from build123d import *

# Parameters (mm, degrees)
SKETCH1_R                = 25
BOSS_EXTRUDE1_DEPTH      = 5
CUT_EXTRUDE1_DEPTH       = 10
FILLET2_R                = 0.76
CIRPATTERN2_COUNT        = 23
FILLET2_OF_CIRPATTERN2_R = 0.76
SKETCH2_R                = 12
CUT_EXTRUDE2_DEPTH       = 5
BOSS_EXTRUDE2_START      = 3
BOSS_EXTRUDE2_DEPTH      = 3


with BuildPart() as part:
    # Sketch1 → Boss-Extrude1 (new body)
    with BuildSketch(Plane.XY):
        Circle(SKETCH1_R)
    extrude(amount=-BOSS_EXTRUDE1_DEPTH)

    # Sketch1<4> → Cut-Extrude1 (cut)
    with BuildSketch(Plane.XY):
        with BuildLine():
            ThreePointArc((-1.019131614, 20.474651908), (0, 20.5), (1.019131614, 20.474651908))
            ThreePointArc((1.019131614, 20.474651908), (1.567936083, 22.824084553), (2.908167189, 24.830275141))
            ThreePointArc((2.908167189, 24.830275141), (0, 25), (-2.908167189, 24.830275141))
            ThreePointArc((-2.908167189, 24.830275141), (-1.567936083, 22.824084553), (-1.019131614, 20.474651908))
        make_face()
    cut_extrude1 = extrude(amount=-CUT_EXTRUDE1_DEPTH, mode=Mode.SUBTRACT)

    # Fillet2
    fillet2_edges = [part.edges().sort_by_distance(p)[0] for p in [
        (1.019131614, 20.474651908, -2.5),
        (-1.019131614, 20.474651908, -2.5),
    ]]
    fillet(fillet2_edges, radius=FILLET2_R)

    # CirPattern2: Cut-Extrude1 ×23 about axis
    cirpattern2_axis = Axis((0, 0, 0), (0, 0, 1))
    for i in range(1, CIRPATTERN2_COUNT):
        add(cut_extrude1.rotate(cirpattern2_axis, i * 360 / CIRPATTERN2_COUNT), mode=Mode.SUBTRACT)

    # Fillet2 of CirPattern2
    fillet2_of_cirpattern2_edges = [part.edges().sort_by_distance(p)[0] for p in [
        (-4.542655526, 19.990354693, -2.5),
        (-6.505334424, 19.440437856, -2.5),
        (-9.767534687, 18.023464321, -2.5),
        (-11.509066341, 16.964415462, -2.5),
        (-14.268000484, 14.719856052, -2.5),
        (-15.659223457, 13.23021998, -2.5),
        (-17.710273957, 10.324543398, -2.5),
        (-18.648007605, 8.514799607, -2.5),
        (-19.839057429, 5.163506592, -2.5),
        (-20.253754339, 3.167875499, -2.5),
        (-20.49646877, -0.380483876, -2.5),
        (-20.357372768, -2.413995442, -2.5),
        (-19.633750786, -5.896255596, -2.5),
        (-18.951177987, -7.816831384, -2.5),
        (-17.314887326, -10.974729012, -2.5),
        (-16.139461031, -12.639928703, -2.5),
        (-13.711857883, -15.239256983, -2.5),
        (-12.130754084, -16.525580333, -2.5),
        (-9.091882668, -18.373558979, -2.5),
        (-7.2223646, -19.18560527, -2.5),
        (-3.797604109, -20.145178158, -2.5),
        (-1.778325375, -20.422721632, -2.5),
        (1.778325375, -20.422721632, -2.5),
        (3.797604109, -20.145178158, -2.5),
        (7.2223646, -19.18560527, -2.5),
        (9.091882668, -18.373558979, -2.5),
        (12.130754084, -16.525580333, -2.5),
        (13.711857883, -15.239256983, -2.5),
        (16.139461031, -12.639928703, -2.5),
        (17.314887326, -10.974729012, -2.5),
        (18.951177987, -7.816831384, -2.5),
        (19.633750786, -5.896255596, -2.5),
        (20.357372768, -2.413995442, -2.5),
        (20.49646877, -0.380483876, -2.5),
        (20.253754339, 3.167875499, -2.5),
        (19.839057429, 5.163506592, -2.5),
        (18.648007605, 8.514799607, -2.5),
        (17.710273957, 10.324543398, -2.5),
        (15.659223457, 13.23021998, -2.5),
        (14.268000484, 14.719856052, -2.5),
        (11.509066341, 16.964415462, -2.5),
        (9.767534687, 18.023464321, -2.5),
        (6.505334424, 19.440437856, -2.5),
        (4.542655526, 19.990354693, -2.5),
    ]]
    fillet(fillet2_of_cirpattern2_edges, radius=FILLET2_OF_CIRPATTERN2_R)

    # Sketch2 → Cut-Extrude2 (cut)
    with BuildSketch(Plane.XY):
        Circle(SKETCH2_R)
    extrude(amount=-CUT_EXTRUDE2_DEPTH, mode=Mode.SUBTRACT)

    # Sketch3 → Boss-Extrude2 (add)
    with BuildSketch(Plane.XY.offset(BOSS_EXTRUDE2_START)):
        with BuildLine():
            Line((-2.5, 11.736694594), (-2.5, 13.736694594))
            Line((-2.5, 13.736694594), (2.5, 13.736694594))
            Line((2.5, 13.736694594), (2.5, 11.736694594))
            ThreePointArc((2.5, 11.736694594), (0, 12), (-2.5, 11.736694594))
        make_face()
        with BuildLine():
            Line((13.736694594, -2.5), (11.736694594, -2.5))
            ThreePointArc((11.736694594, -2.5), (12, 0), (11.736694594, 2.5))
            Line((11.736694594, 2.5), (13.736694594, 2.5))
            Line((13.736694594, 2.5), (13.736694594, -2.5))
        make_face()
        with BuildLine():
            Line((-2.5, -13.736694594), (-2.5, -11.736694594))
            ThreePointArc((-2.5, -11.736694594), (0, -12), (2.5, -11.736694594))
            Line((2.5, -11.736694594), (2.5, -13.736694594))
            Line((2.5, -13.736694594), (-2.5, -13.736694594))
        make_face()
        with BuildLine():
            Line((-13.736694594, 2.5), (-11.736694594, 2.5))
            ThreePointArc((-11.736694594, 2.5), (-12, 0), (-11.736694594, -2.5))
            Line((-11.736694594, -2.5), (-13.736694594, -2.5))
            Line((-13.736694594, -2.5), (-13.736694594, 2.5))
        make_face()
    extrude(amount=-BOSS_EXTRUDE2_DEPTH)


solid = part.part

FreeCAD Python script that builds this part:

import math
import FreeCAD as App
import Part
import Sketcher


def edges_at(feature, points):
    """Names of the edges that pass closest to the given points."""
    edges = feature.Shape.Edges
    near = lambda p: min(range(len(edges)), key=lambda i: edges[i].distToShape(Part.Vertex(*p))[0])
    return sorted({f"Edge{near(p) + 1}" for p in points})

doc = App.newDocument("Part")
body = doc.addObject("PartDesign::Body", "Body")

# Sketch on XY plane
sketch1 = doc.addObject("Sketcher::SketchObject", "Sketch")
body.addObject(sketch1)
sketch1.AttachmentSupport = (doc.XY_Plane, [""])
sketch1.MapMode = "FlatFace"
sketch1.addGeometry(Part.Circle(App.Vector(0, 0, 0), App.Vector(0, 0, 1), 25), False)
sketch1.addConstraint(Sketcher.Constraint("Coincident", 0, 3, -1, 1))
sketch1.addConstraint(Sketcher.Constraint("Diameter", 0, 50.0))
pad1 = doc.addObject("PartDesign::Pad", "Pad")
body.addObject(pad1)
pad1.Profile = sketch1
pad1.Length = 5
pad1.Reversed = True

# Sketch on XY plane
sketch2 = doc.addObject("Sketcher::SketchObject", "Sketch001")
body.addObject(sketch2)
sketch2.AttachmentSupport = (doc.XY_Plane, [""])
sketch2.MapMode = "FlatFace"
sketch2.addGeometry(Part.ArcOfCircle(Part.Circle(App.Vector(0, 0, 0), App.Vector(0, 0, 1), 20.5), math.radians(87.15), math.radians(92.85)), False)
sketch2.addGeometry(Part.ArcOfCircle(Part.Circle(App.Vector(7.8, 20.1, 0), App.Vector(0, 0, 1), 6.7), math.radians(136), math.radians(177)), False)
sketch2.addGeometry(Part.ArcOfCircle(Part.Circle(App.Vector(0, 0, 0), App.Vector(0, 0, 1), 25), math.radians(83.32), math.radians(96.68)), False)
sketch2.addGeometry(Part.ArcOfCircle(Part.Circle(App.Vector(-7.8, 20.1, 0), App.Vector(0, 0, 1), 6.7), math.radians(3), math.radians(44)), False)
sketch2.addConstraint(Sketcher.Constraint("Coincident", 0, 1, 1, 2))
sketch2.addConstraint(Sketcher.Constraint("Coincident", 1, 1, 2, 1))
sketch2.addConstraint(Sketcher.Constraint("Coincident", 2, 2, 3, 2))
sketch2.addConstraint(Sketcher.Constraint("Coincident", 3, 1, 0, 2))
sketch2.addConstraint(Sketcher.Constraint("Coincident", 0, 3, -1, 1))
sketch2.addConstraint(Sketcher.Constraint("Coincident", 2, 3, -1, 1))
sketch2.addConstraint(Sketcher.Constraint("Equal", 1, 3))
sketch2.addConstraint(Sketcher.Constraint("Symmetric", 1, 3, 3, 3, -2))
sketch2.addConstraint(Sketcher.Constraint("Radius", 2, 25.0))
sketch2.addConstraint(Sketcher.Constraint("Radius", 0, 20.5))
sketch2.addConstraint(Sketcher.Constraint("Radius", 1, 6.747807))
sketch2.addConstraint(Sketcher.Constraint("DistanceX", 2, 2, 0, 1, 3.927299))
sketch2.addConstraint(Sketcher.Constraint("DistanceX", -1, 1, 0, 1, 1.019132))
pocket1 = doc.addObject("PartDesign::Pocket", "Pocket")
body.addObject(pocket1)
pocket1.Profile = sketch2
pocket1.Length = 10
doc.recompute()

fillet = doc.addObject("PartDesign::Fillet", "Fillet")
body.addObject(fillet)
fillet.Base = (pocket1, edges_at(pocket1, [(1.019, 20.475, -2.5), (-1.019, 20.475, -2.5)]))
fillet.Radius = 0.76
doc.recompute()

polarpattern = doc.addObject("PartDesign::PolarPattern", "PolarPattern")
body.addObject(polarpattern)
polarpattern.Originals = [pocket1]
polarpattern.Axis = (doc.Z_Axis, [""])
polarpattern.Angle = 360
polarpattern.Occurrences = 23
body.Tip = polarpattern
doc.recompute()

fillet2 = doc.addObject("PartDesign::Fillet", "Fillet001")
body.addObject(fillet2)
fillet2.Base = (polarpattern, edges_at(polarpattern, [
    (-4.543, 19.99, -2.5),
    (-6.505, 19.44, -2.5),
    (-9.768, 18.023, -2.5),
    (-11.509, 16.964, -2.5),
    (-14.268, 14.72, -2.5),
    (-15.659, 13.23, -2.5),
    (-17.71, 10.325, -2.5),
    (-18.648, 8.515, -2.5),
    (-19.839, 5.164, -2.5),
    (-20.254, 3.168, -2.5),
    (-20.496, -0.38, -2.5),
    (-20.357, -2.414, -2.5),
    (-19.634, -5.896, -2.5),
    (-18.951, -7.817, -2.5),
    (-17.315, -10.975, -2.5),
    (-16.139, -12.64, -2.5),
    (-13.712, -15.239, -2.5),
    (-12.131, -16.526, -2.5),
    (-9.092, -18.374, -2.5),
    (-7.222, -19.186, -2.5),
    (-3.798, -20.145, -2.5),
    (-1.778, -20.423, -2.5),
    (1.778, -20.423, -2.5),
    (3.798, -20.145, -2.5),
    (7.222, -19.186, -2.5),
    (9.092, -18.374, -2.5),
    (12.131, -16.526, -2.5),
    (13.712, -15.239, -2.5),
    (16.139, -12.64, -2.5),
    (17.315, -10.975, -2.5),
    (18.951, -7.817, -2.5),
    (19.634, -5.896, -2.5),
    (20.357, -2.414, -2.5),
    (20.496, -0.38, -2.5),
    (20.254, 3.168, -2.5),
    (19.839, 5.164, -2.5),
    (18.648, 8.515, -2.5),
    (17.71, 10.325, -2.5),
    (15.659, 13.23, -2.5),
    (14.268, 14.72, -2.5),
    (11.509, 16.964, -2.5),
    (9.768, 18.023, -2.5),
    (6.505, 19.44, -2.5),
    (4.543, 19.99, -2.5),
]))
fillet2.Radius = 0.76

# Sketch on XY plane
sketch3 = doc.addObject("Sketcher::SketchObject", "Sketch002")
body.addObject(sketch3)
sketch3.AttachmentSupport = (doc.XY_Plane, [""])
sketch3.MapMode = "FlatFace"
sketch3.addGeometry(Part.Circle(App.Vector(0, 0, 0), App.Vector(0, 0, 1), 12), False)
sketch3.addConstraint(Sketcher.Constraint("Coincident", 0, 3, -1, 1))
sketch3.addConstraint(Sketcher.Constraint("Diameter", 0, 24.0))
pocket2 = doc.addObject("PartDesign::Pocket", "Pocket001")
body.addObject(pocket2)
pocket2.Profile = sketch3
pocket2.Length = 5

# Sketch on XY plane
sketch4 = doc.addObject("Sketcher::SketchObject", "Sketch003")
body.addObject(sketch4)
sketch4.AttachmentSupport = (doc.XY_Plane, [""])
sketch4.MapMode = "FlatFace"
sketch4.AttachmentOffset = App.Placement(App.Vector(0, 0, 3), App.Rotation())
sketch4.addGeometry(Part.LineSegment(App.Vector(-2.5, 13.7, 0), App.Vector(-2.5, 11.7, 0)), False)
sketch4.addGeometry(Part.ArcOfCircle(Part.Circle(App.Vector(0, 0, 0), App.Vector(0, 0, 1), 12), math.radians(78), math.radians(102)), False)
sketch4.addGeometry(Part.LineSegment(App.Vector(2.5, 11.7, 0), App.Vector(2.5, 13.7, 0)), False)
sketch4.addGeometry(Part.LineSegment(App.Vector(2.5, 13.7, 0), App.Vector(-2.5, 13.7, 0)), False)
sketch4.addGeometry(Part.LineSegment(App.Vector(11.7, -2.5, 0), App.Vector(13.7, -2.5, 0)), False)
sketch4.addGeometry(Part.LineSegment(App.Vector(13.7, -2.5, 0), App.Vector(13.7, 2.5, 0)), False)
sketch4.addGeometry(Part.LineSegment(App.Vector(13.7, 2.5, 0), App.Vector(11.7, 2.5, 0)), False)
sketch4.addGeometry(Part.ArcOfCircle(Part.Circle(App.Vector(0, 0, 0), App.Vector(0, 0, 1), 12), math.radians(-12), math.radians(12)), False)
sketch4.addGeometry(Part.LineSegment(App.Vector(-2.5, -11.7, 0), App.Vector(-2.5, -13.7, 0)), False)
sketch4.addGeometry(Part.LineSegment(App.Vector(-2.5, -13.7, 0), App.Vector(2.5, -13.7, 0)), False)
sketch4.addGeometry(Part.LineSegment(App.Vector(2.5, -13.7, 0), App.Vector(2.5, -11.7, 0)), False)
sketch4.addGeometry(Part.ArcOfCircle(Part.Circle(App.Vector(0, 0, 0), App.Vector(0, 0, 1), 12), math.radians(-102), math.radians(-78)), False)
sketch4.addGeometry(Part.LineSegment(App.Vector(-11.7, 2.5, 0), App.Vector(-13.7, 2.5, 0)), False)
sketch4.addGeometry(Part.LineSegment(App.Vector(-13.7, 2.5, 0), App.Vector(-13.7, -2.5, 0)), False)
sketch4.addGeometry(Part.LineSegment(App.Vector(-13.7, -2.5, 0), App.Vector(-11.7, -2.5, 0)), False)
sketch4.addGeometry(Part.ArcOfCircle(Part.Circle(App.Vector(0, 0, 0), App.Vector(0, 0, 1), 12), math.radians(168), math.radians(192)), False)
sketch4.addConstraint(Sketcher.Constraint("Coincident", 0, 2, 1, 2))
sketch4.addConstraint(Sketcher.Constraint("Coincident", 1, 1, 2, 1))
sketch4.addConstraint(Sketcher.Constraint("Coincident", 2, 2, 3, 1))
sketch4.addConstraint(Sketcher.Constraint("Coincident", 3, 2, 0, 1))
sketch4.addConstraint(Sketcher.Constraint("Coincident", 4, 2, 5, 1))
sketch4.addConstraint(Sketcher.Constraint("Coincident", 5, 2, 6, 1))
sketch4.addConstraint(Sketcher.Constraint("Coincident", 6, 2, 7, 2))
sketch4.addConstraint(Sketcher.Constraint("Coincident", 7, 1, 4, 1))
sketch4.addConstraint(Sketcher.Constraint("Coincident", 8, 2, 9, 1))
sketch4.addConstraint(Sketcher.Constraint("Coincident", 9, 2, 10, 1))
sketch4.addConstraint(Sketcher.Constraint("Coincident", 10, 2, 11, 2))
sketch4.addConstraint(Sketcher.Constraint("Coincident", 11, 1, 8, 1))
sketch4.addConstraint(Sketcher.Constraint("Coincident", 12, 2, 13, 1))
sketch4.addConstraint(Sketcher.Constraint("Coincident", 13, 2, 14, 1))
sketch4.addConstraint(Sketcher.Constraint("Coincident", 14, 2, 15, 2))
sketch4.addConstraint(Sketcher.Constraint("Coincident", 15, 1, 12, 1))
sketch4.addConstraint(Sketcher.Constraint("Vertical", 0))
sketch4.addConstraint(Sketcher.Constraint("Vertical", 2))
sketch4.addConstraint(Sketcher.Constraint("Horizontal", 3))
sketch4.addConstraint(Sketcher.Constraint("Horizontal", 4))
sketch4.addConstraint(Sketcher.Constraint("Vertical", 5))
sketch4.addConstraint(Sketcher.Constraint("Horizontal", 6))
sketch4.addConstraint(Sketcher.Constraint("Vertical", 8))
sketch4.addConstraint(Sketcher.Constraint("Horizontal", 9))
sketch4.addConstraint(Sketcher.Constraint("Vertical", 10))
sketch4.addConstraint(Sketcher.Constraint("Horizontal", 12))
sketch4.addConstraint(Sketcher.Constraint("Vertical", 13))
sketch4.addConstraint(Sketcher.Constraint("Horizontal", 14))
sketch4.addConstraint(Sketcher.Constraint("Coincident", 1, 3, -1, 1))
sketch4.addConstraint(Sketcher.Constraint("Coincident", 7, 3, -1, 1))
sketch4.addConstraint(Sketcher.Constraint("Coincident", 11, 3, -1, 1))
sketch4.addConstraint(Sketcher.Constraint("Coincident", 15, 3, -1, 1))
sketch4.addConstraint(Sketcher.Constraint("Equal", 1, 7))
sketch4.addConstraint(Sketcher.Constraint("Equal", 7, 11))
sketch4.addConstraint(Sketcher.Constraint("Equal", 11, 15))
sketch4.addConstraint(Sketcher.Constraint("Symmetric", 2, 2, 8, 2, -1, 1))
sketch4.addConstraint(Sketcher.Constraint("Symmetric", 4, 2, 12, 2, -1, 1))
sketch4.addConstraint(Sketcher.Constraint("Horizontal", 0, 2, 1, 1))
sketch4.addConstraint(Sketcher.Constraint("Horizontal", 10, 2, 11, 1))
sketch4.addConstraint(Sketcher.Constraint("Horizontal", 6, 2, 12, 2))
sketch4.addConstraint(Sketcher.Constraint("Horizontal", 7, 1, 13, 2))
sketch4.addConstraint(Sketcher.Constraint("Equal", 14, 0))
sketch4.addConstraint(Sketcher.Constraint("Equal", 9, 5))
sketch4.addConstraint(Sketcher.Constraint("Radius", 1, 12.0))
sketch4.addConstraint(Sketcher.Constraint("DistanceX", 3, 2, 3, 1, 5.0))
sketch4.addConstraint(Sketcher.Constraint("DistanceX", 4, 1, 4, 2, 2.0))
pad2 = doc.addObject("PartDesign::Pad", "Pad001")
body.addObject(pad2)
pad2.Profile = sketch4
pad2.Length = 3
pad2.Reversed = True

doc.recompute()
